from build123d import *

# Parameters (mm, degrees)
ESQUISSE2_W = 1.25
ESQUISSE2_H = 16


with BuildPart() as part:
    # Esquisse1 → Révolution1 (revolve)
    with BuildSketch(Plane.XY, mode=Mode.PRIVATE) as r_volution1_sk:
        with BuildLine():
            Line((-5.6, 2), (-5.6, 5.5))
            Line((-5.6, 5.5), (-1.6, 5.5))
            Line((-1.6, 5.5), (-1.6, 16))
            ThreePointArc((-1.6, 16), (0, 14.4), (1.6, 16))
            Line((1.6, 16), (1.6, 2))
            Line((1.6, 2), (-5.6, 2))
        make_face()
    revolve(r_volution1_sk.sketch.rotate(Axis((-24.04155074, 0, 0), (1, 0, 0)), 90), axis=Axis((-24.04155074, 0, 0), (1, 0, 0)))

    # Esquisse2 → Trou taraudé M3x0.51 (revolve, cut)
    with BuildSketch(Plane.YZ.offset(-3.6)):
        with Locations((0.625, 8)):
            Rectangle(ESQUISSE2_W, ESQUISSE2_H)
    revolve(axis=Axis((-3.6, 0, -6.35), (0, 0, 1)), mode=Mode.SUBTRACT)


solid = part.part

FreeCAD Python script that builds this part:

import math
import FreeCAD as App
import Part
import Sketcher
from FreeCAD import Vector
Q = App.Units.Quantity

doc = App.newDocument("Part")
body = doc.addObject("PartDesign::Body", "Body")

# Sketch on XY plane
sketch1 = doc.addObject("Sketcher::SketchObject", "Sketch")
body.addObject(sketch1)
sketch1.AttachmentSupport = (doc.XY_Plane, [""])
sketch1.MapMode = "FlatFace"
sketch1.addGeometry(Part.LineSegment(Vector(-5.6, 5.5, 0), Vector(-5.6, 2, 0)), False)
sketch1.addGeometry(Part.LineSegment(Vector(-5.6, 2, 0), Vector(1.6, 2, 0)), False)
sketch1.addGeometry(Part.LineSegment(Vector(1.6, 2, 0), Vector(1.6, 16, 0)), False)
sketch1.addGeometry(Part.ArcOfCircle(Part.Circle(Vector(0, 16, 0), Vector(0, 0, 1), 1.6), math.radians(180), math.radians(360)), False)
sketch1.addGeometry(Part.LineSegment(Vector(-1.6, 16, 0), Vector(-1.6, 5.5, 0)), False)
sketch1.addGeometry(Part.LineSegment(Vector(-1.6, 5.5, 0), Vector(-5.6, 5.5, 0)), False)
sketch1.addConstraint(Sketcher.Constraint("Coincident", 0, 2, 1, 1))
sketch1.addConstraint(Sketcher.Constraint("Coincident", 1, 2, 2, 1))
sketch1.addConstraint(Sketcher.Constraint("Tangent", 2, 2, 3, 2))
sketch1.addConstraint(Sketcher.Constraint("Tangent", 3, 1, 4, 1))
sketch1.addConstraint(Sketcher.Constraint("Coincident", 4, 2, 5, 1))
sketch1.addConstraint(Sketcher.Constraint("Coincident", 5, 2, 0, 1))
sketch1.addConstraint(Sketcher.Constraint("Vertical", 0))
sketch1.addConstraint(Sketcher.Constraint("Horizontal", 1))
sketch1.addConstraint(Sketcher.Constraint("Vertical", 2))
sketch1.addConstraint(Sketcher.Constraint("Vertical", 4))
sketch1.addConstraint(Sketcher.Constraint("Horizontal", 5))
sketch1.addConstraint(Sketcher.Constraint("PointOnObject", 3, 3, -2))
sketch1.addConstraint(Sketcher.Constraint("Radius", 3, Q("1.6 mm")))
sketch1.addConstraint(Sketcher.Constraint("DistanceX", 5, 2, 5, 1, Q("4 mm")))
sketch1.addConstraint(Sketcher.Constraint("DistanceY", 2, 1, 2, 2, Q("14 mm")))
sketch1.addConstraint(Sketcher.Constraint("DistanceY", 0, 2, 0, 1, Q("3.5 mm")))
sketch1.addConstraint(Sketcher.Constraint("DistanceY", -1, 1, 3, 3, Q("16 mm")))
revolution = doc.addObject("PartDesign::Revolution", "Revolution")
body.addObject(revolution)
revolution.Profile = sketch1
revolution.ReferenceAxis = (sketch1, ["H_Axis"])
revolution.Angle = 360

# Sketch on YZ plane
sketch2 = doc.addObject("Sketcher::SketchObject", "Sketch001")
body.addObject(sketch2)
sketch2.AttachmentSupport = (doc.YZ_Plane, [""])
sketch2.MapMode = "FlatFace"
sketch2.AttachmentOffset = App.Placement(Vector(0, 0, -3.6), App.Rotation())
sketch2.addGeometry(Part.LineSegment(Vector(0, 16, 0), Vector(0, 0, 0)), False)
sketch2.addGeometry(Part.LineSegment(Vector(0, 0, 0), Vector(1.25, 0, 0)), False)
sketch2.addGeometry(Part.LineSegment(Vector(1.25, 0, 0), Vector(1.25, 16, 0)), False)
sketch2.addGeometry(Part.LineSegment(Vector(1.25, 16, 0), Vector(0, 16, 0)), False)
sketch2.addConstraint(Sketcher.Constraint("Coincident", 0, 2, 1, 1))
sketch2.addConstraint(Sketcher.Constraint("Coincident", 1, 2, 2, 1))
sketch2.addConstraint(Sketcher.Constraint("Coincident", 2, 2, 3, 1))
sketch2.addConstraint(Sketcher.Constraint("Coincident", 3, 2, 0, 1))
sketch2.addConstraint(Sketcher.Constraint("Vertical", 0))
sketch2.addConstraint(Sketcher.Constraint("Horizontal", 1))
sketch2.addConstraint(Sketcher.Constraint("Vertical", 2))
sketch2.addConstraint(Sketcher.Constraint("Horizontal", 3))
sketch2.addConstraint(Sketcher.Constraint("Coincident", 0, 2, -1, 1))
sketch2.addConstraint(Sketcher.Constraint("DistanceY", 0, 2, 0, 1, Q("16 mm")))
sketch2.addConstraint(Sketcher.Constraint("DistanceX", 1, 1, 1, 2, Q("1.25 mm")))
groove = doc.addObject("PartDesign::Groove", "Groove")
body.addObject(groove)
groove.Profile = sketch2
groove.ReferenceAxis = (sketch2, ["V_Axis"])
groove.Angle = 360

doc.recompute()
